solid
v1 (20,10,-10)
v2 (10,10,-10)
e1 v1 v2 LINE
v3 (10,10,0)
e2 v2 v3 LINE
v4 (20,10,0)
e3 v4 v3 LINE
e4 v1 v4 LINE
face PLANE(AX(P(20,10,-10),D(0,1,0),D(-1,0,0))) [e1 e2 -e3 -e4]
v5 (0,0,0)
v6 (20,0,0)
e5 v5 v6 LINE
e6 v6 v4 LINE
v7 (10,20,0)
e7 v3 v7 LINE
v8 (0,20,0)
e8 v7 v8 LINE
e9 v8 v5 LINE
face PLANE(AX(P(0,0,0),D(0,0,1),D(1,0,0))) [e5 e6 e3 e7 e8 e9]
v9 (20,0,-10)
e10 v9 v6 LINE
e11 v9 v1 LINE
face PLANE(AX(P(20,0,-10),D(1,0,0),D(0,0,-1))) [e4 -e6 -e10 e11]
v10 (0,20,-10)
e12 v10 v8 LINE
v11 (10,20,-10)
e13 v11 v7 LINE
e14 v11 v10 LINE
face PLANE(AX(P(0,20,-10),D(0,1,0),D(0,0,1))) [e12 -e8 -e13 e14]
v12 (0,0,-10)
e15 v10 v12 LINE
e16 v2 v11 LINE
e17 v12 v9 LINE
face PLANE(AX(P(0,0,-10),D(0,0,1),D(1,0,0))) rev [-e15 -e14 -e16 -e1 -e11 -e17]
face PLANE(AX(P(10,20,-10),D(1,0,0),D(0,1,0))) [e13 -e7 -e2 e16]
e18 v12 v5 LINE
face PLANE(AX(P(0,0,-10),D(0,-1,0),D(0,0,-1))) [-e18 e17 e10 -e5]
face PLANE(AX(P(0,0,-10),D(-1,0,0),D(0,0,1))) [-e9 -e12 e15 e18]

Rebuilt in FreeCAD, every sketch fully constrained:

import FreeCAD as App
import Part
import Sketcher
Q = App.Units.Quantity


def add_polygon(sketch, points):
    """Adds a closed chain of lines whose ends are joined by coincident constraints."""
    first, n = sketch.GeometryCount, len(points)
    for a, b in zip(points, points[1:] + points[:1]):
        sketch.addGeometry(Part.LineSegment(App.Vector(*a, 0), App.Vector(*b, 0)), False)
    for i in range(n):
        sketch.addConstraint(Sketcher.Constraint("Coincident", first + i, 2, first + (i + 1) % n, 1))

doc = App.newDocument("Part")
body = doc.addObject("PartDesign::Body", "Body")

sketch1 = body.newObject("Sketcher::SketchObject", "Sketch")
sketch1.AttachmentSupport = (doc.getObject("XY_Plane"), [""])
sketch1.MapMode = "FlatFace"
add_polygon(sketch1, [(0, 20), (0, 0), (20, 0), (20, 10), (10, 10), (10, 20)])
sketch1.addConstraint(Sketcher.Constraint("Vertical", 0))
sketch1.addConstraint(Sketcher.Constraint("Horizontal", 1))
sketch1.addConstraint(Sketcher.Constraint("Vertical", 2))
sketch1.addConstraint(Sketcher.Constraint("Horizontal", 3))
sketch1.addConstraint(Sketcher.Constraint("Vertical", 4))
sketch1.addConstraint(Sketcher.Constraint("Horizontal", 5))
sketch1.addConstraint(Sketcher.Constraint("Coincident", 0, 2, -1, 1))
sketch1.addConstraint(Sketcher.Constraint("Equal", 3, 5))
sketch1.addConstraint(Sketcher.Constraint("Equal", 1, 0))
sketch1.addConstraint(Sketcher.Constraint("Equal", 5, 2))
sketch1.addConstraint(Sketcher.Constraint("DistanceX", 1, 1, 1, 2, Q("20 mm")))
pad1 = body.newObject("PartDesign::Pad", "Pad")
pad1.Profile = sketch1
pad1.Length = 10
pad1.Reversed = True

doc.recompute()
